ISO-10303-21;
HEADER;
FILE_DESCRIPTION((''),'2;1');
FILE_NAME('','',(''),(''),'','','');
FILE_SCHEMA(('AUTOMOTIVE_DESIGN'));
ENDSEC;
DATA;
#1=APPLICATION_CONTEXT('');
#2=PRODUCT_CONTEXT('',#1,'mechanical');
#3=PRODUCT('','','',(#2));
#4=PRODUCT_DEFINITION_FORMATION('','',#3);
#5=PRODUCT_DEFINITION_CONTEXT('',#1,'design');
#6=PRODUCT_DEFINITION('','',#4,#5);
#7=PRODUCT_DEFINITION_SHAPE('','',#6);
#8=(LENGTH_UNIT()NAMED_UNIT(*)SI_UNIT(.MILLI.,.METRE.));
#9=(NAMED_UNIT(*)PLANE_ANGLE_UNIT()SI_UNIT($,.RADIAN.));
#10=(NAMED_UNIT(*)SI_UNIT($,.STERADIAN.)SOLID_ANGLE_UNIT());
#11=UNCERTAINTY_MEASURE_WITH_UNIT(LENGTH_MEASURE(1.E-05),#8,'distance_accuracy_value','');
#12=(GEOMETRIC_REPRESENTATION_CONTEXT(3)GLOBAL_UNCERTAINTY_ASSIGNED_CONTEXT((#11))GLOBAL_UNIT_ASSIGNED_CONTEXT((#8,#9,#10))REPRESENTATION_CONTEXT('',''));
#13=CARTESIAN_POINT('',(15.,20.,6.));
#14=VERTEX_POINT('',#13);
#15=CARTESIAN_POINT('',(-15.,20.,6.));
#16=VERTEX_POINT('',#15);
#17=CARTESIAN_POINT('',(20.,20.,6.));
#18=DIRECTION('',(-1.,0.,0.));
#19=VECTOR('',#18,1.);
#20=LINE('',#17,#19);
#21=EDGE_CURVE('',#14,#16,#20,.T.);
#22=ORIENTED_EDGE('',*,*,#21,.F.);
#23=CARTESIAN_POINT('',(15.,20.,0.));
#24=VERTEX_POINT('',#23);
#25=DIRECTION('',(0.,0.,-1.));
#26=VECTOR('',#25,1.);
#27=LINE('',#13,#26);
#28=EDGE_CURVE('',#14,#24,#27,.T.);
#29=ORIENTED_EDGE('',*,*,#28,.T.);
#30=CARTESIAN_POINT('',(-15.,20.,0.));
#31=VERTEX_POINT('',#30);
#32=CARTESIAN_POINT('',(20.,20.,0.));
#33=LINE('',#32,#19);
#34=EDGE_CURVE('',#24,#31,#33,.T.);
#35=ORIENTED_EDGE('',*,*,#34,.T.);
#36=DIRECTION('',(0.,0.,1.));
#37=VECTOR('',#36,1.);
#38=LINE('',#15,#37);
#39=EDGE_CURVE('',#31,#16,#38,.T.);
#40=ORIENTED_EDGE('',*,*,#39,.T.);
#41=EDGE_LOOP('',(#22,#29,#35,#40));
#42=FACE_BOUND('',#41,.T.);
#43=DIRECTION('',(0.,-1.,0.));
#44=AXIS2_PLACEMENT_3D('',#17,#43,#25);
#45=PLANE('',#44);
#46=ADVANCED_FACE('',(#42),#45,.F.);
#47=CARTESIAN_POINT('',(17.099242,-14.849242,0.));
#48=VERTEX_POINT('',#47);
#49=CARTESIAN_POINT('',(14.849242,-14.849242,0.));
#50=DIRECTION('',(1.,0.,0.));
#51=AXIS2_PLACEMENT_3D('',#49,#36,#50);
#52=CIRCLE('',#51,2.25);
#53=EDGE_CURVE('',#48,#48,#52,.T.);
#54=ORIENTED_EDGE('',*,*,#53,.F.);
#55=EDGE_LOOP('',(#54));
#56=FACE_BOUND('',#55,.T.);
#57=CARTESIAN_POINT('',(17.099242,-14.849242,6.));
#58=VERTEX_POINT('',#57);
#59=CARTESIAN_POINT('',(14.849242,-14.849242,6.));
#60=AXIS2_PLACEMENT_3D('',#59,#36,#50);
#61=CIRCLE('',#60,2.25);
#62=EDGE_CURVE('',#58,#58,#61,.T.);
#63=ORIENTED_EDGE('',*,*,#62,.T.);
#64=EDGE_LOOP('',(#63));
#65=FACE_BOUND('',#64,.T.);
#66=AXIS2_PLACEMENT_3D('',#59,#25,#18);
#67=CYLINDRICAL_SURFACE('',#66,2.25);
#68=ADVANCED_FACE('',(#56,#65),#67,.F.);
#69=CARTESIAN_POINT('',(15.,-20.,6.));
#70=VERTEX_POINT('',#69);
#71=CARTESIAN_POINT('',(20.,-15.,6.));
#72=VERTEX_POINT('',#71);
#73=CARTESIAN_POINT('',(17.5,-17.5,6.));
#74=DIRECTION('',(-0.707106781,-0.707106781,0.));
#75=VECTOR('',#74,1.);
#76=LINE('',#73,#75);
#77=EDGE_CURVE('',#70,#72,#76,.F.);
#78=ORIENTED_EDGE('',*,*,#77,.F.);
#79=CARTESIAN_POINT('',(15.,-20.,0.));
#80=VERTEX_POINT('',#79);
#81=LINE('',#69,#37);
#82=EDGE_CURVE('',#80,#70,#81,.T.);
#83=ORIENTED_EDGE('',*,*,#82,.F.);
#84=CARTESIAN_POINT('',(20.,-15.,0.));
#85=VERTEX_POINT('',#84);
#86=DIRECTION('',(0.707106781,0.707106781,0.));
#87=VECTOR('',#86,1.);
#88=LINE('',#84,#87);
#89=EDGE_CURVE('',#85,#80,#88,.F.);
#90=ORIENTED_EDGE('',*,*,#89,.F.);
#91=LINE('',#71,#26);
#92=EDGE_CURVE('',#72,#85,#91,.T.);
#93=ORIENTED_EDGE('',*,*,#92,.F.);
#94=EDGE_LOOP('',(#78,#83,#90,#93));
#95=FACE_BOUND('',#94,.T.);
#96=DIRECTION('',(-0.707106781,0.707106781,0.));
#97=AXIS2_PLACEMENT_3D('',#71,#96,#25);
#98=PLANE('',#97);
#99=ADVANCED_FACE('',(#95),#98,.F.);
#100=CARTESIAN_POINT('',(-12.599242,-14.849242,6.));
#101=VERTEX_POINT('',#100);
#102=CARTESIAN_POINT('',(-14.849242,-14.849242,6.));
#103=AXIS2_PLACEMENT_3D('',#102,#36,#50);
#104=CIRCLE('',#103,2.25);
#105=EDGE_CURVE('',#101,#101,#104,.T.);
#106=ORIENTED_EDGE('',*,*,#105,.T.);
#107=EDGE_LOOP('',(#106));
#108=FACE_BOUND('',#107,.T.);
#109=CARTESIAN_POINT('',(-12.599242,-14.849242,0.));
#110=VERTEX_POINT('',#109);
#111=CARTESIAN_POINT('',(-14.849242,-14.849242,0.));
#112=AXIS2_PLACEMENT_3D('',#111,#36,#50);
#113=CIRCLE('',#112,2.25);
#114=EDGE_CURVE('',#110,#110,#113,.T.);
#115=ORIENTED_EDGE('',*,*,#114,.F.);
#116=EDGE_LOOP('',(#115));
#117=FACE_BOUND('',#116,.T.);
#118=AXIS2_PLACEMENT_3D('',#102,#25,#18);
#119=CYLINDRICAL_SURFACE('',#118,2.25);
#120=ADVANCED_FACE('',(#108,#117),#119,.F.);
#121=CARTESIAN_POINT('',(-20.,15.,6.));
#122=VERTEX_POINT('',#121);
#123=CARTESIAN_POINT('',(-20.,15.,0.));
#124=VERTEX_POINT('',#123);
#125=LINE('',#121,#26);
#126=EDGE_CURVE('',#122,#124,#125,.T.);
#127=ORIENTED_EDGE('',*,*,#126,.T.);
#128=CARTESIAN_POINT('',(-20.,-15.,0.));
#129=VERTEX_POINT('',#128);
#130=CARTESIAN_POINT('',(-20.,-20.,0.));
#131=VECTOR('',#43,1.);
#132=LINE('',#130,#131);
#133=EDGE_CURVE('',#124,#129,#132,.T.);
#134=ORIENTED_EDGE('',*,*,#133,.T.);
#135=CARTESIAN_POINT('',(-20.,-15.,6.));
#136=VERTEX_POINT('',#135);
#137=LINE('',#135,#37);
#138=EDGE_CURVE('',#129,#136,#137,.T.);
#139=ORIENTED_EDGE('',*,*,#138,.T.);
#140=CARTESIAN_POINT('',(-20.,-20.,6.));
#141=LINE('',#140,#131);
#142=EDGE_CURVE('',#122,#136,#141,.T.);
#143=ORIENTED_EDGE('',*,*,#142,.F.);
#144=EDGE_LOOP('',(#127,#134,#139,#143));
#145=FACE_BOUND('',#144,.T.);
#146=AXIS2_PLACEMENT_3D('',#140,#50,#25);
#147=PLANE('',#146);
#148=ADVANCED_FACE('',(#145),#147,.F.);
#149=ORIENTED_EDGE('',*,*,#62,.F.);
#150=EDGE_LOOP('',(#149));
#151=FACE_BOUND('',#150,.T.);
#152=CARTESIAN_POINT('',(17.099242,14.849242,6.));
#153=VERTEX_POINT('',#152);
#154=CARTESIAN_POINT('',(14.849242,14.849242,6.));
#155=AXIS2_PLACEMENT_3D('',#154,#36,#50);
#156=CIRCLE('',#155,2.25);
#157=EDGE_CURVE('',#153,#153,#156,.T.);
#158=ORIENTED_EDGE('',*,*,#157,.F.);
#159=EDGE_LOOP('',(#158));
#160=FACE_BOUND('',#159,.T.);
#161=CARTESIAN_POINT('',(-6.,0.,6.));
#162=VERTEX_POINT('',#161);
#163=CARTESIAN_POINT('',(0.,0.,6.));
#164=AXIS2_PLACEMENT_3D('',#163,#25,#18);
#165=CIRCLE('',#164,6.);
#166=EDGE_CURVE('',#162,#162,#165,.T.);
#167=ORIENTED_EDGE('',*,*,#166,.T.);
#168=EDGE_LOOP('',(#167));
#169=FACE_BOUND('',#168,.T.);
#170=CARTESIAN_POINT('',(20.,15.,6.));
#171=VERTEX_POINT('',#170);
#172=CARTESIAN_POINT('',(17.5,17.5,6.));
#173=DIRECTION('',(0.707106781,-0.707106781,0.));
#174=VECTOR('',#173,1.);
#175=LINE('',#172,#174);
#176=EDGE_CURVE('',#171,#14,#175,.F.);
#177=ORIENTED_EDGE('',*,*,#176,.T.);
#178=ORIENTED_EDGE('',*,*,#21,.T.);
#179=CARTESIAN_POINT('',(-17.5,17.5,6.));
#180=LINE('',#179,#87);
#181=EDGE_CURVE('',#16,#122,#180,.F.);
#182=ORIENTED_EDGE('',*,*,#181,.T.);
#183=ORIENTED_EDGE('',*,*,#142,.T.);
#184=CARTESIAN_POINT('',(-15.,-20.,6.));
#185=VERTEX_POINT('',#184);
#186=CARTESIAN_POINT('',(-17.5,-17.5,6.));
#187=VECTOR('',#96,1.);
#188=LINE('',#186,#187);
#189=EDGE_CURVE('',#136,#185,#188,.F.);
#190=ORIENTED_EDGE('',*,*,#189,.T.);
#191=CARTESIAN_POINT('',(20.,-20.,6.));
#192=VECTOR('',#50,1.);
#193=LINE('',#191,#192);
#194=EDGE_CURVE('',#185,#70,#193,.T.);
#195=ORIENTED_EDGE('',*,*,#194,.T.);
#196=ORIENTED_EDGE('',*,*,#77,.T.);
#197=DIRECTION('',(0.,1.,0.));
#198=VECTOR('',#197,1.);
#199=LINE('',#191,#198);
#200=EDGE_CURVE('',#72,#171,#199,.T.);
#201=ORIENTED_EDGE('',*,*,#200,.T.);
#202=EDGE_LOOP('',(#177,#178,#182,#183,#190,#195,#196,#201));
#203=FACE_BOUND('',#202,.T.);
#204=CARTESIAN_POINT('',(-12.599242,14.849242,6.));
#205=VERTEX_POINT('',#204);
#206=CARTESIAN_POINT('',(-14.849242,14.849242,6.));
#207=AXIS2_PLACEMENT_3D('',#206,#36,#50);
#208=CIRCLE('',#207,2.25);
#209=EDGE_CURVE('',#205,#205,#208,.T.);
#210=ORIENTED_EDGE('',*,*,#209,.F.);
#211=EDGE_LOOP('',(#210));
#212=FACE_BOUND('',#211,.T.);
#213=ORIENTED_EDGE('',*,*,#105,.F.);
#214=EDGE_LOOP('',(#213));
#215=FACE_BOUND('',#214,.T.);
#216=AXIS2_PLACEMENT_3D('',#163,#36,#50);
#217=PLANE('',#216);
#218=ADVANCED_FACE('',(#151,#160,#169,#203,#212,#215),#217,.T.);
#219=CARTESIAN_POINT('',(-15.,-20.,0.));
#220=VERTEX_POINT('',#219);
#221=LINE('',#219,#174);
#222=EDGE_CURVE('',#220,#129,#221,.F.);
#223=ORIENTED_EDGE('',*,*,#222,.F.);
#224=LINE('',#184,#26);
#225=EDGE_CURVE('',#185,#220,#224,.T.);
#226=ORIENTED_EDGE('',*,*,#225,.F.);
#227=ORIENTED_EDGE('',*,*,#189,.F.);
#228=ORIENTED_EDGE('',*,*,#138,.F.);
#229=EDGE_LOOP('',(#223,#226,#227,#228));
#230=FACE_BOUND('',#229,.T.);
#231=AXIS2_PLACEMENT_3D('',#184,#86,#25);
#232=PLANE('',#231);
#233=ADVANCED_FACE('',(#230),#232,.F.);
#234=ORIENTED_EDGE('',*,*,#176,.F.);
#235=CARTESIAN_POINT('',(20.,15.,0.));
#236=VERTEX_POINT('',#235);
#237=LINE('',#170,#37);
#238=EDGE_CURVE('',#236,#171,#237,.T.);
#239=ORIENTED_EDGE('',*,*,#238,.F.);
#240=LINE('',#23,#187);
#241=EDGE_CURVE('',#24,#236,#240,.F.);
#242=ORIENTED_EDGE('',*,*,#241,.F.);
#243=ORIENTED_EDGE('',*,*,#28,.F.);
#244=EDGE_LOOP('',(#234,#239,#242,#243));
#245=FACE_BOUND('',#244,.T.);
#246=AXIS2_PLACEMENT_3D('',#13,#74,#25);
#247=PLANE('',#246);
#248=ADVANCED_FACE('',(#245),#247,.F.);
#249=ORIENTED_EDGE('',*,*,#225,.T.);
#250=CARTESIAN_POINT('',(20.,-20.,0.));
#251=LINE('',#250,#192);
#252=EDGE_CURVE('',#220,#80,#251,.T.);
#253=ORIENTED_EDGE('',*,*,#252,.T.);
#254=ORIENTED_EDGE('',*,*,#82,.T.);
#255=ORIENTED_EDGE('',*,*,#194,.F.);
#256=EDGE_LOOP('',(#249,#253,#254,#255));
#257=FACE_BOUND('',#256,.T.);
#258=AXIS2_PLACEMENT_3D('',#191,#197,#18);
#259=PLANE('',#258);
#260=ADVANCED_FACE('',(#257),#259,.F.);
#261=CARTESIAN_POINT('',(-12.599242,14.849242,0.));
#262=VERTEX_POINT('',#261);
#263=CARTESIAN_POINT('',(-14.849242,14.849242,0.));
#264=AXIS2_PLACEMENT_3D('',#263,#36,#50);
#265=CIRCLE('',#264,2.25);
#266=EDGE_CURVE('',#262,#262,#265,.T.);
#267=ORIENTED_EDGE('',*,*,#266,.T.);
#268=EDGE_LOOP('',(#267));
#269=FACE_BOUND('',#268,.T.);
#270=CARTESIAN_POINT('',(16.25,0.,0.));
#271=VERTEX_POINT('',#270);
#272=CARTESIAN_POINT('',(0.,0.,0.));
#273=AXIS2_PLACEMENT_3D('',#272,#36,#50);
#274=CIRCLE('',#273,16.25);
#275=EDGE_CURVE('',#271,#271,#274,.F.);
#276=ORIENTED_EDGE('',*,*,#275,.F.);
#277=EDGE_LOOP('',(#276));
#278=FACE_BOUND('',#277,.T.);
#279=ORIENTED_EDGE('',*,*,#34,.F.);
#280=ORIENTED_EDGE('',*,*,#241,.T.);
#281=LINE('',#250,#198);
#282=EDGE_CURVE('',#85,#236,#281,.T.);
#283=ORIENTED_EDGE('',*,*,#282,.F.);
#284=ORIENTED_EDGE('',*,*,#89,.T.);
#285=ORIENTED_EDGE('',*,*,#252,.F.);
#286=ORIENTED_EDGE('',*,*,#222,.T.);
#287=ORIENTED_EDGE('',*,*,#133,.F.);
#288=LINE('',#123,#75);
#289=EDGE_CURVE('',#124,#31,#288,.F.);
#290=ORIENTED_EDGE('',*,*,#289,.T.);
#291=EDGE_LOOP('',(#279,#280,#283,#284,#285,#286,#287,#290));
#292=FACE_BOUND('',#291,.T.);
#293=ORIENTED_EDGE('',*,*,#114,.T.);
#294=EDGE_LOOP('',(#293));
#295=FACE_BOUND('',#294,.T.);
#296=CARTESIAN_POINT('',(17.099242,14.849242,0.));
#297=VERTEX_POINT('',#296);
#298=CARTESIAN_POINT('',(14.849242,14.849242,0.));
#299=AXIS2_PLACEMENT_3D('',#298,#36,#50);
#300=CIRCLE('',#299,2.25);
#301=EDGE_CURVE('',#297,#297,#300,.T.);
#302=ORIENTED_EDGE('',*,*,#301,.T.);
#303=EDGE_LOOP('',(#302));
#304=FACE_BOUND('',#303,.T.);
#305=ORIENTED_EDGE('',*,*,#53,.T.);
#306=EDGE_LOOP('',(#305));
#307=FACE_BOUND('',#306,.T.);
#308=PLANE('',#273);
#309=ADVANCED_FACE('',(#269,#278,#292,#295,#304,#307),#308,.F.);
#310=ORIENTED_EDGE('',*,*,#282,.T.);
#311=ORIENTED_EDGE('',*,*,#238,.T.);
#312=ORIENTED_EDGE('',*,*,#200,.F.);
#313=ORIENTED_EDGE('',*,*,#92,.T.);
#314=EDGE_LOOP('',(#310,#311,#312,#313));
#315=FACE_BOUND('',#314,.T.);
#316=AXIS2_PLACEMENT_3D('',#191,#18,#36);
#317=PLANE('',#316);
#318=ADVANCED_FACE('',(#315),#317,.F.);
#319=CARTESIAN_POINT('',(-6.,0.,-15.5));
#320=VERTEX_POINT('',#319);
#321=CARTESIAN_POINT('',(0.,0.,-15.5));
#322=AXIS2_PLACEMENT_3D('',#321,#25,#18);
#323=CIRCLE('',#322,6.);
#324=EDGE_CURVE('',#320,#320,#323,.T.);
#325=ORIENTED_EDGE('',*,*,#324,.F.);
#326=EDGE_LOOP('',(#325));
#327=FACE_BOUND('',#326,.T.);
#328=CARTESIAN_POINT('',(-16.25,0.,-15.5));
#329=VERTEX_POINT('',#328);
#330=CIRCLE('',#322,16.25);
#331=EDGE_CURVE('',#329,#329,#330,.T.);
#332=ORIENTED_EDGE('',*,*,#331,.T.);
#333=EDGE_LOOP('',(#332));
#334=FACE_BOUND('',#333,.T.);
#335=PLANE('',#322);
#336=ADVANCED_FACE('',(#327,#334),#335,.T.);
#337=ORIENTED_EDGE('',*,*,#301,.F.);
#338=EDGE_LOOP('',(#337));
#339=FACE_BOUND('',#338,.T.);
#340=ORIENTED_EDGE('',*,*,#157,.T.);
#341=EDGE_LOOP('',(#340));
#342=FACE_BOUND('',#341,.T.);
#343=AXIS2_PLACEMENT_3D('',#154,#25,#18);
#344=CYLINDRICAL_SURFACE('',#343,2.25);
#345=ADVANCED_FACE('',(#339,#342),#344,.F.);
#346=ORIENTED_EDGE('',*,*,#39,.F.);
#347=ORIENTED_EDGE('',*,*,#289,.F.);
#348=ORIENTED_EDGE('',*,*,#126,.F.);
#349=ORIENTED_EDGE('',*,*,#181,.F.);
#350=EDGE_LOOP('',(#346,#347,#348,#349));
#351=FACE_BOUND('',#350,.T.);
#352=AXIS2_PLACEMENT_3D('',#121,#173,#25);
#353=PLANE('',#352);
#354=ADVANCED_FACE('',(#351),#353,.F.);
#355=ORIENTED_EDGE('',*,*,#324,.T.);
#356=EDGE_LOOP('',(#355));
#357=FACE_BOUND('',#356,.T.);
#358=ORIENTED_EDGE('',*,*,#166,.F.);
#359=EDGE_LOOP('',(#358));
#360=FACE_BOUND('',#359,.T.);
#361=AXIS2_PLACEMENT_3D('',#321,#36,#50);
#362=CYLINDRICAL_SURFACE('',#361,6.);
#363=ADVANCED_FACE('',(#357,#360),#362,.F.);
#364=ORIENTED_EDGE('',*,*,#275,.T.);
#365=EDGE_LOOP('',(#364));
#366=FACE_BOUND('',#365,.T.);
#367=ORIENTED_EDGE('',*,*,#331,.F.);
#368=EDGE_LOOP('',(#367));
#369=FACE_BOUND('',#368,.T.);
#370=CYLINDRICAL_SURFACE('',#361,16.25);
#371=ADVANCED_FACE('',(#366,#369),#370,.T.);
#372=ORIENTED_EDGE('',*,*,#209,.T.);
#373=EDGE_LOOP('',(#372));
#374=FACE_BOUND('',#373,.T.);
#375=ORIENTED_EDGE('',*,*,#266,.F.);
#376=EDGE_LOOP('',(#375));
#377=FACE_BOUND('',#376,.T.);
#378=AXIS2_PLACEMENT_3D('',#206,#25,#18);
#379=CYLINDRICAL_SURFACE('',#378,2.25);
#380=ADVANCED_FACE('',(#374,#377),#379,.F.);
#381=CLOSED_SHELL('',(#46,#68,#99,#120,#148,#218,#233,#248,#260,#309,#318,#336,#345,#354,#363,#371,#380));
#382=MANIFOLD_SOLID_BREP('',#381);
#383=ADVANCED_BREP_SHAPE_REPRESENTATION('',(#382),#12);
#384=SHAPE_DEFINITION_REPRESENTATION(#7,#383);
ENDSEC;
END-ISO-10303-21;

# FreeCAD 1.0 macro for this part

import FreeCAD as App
import Part
import Sketcher

V = App.Vector
Q = App.Units.Quantity


def edges_at(feature, points):
    """Names of the edges that pass closest to the given points."""
    edges = feature.Shape.Edges
    near = lambda p: min(range(len(edges)), key=lambda i: edges[i].distToShape(Part.Vertex(*p))[0])
    return sorted({f"Edge{near(p) + 1}" for p in points})

doc = App.newDocument("Part")
body = doc.addObject("PartDesign::Body", "Body")

# Sketch on XY plane
sketch1 = doc.addObject("Sketcher::SketchObject", "Sketch")
body.addObject(sketch1)
sketch1.AttachmentSupport = (doc.XY_Plane, [""])
sketch1.MapMode = "FlatFace"
sketch1.addGeometry(Part.LineSegment(V(-20, 20, 0), V(-20, -20, 0)), False)
sketch1.addGeometry(Part.LineSegment(V(-20, -20, 0), V(20, -20, 0)), False)
sketch1.addGeometry(Part.LineSegment(V(20, -20, 0), V(20, 20, 0)), False)
sketch1.addGeometry(Part.LineSegment(V(20, 20, 0), V(-20, 20, 0)), False)
sketch1.addGeometry(Part.Circle(V(-14.849242, -14.849242, 0), V(0, 0, 1), 2.25), False)
sketch1.addGeometry(Part.Circle(V(14.849242, -14.849242, 0), V(0, 0, 1), 2.25), False)
sketch1.addGeometry(Part.Circle(V(-14.849242, 14.849242, 0), V(0, 0, 1), 2.25), False)
sketch1.addGeometry(Part.Circle(V(14.849242, 14.849242, 0), V(0, 0, 1), 2.25), False)
sketch1.addConstraint(Sketcher.Constraint("Coincident", 0, 2, 1, 1))
sketch1.addConstraint(Sketcher.Constraint("Coincident", 1, 2, 2, 1))
sketch1.addConstraint(Sketcher.Constraint("Coincident", 2, 2, 3, 1))
sketch1.addConstraint(Sketcher.Constraint("Coincident", 3, 2, 0, 1))
sketch1.addConstraint(Sketcher.Constraint("Vertical", 0))
sketch1.addConstraint(Sketcher.Constraint("Horizontal", 1))
sketch1.addConstraint(Sketcher.Constraint("Vertical", 2))
sketch1.addConstraint(Sketcher.Constraint("Horizontal", 3))
sketch1.addConstraint(Sketcher.Constraint("Equal", 4, 5))
sketch1.addConstraint(Sketcher.Constraint("Equal", 5, 6))
sketch1.addConstraint(Sketcher.Constraint("Equal", 6, 7))
sketch1.addConstraint(Sketcher.Constraint("Symmetric", 5, 3, 6, 3, -1, 1))
sketch1.addConstraint(Sketcher.Constraint("Symmetric", 4, 3, 7, 3, -1, 1))
sketch1.addConstraint(Sketcher.Constraint("Symmetric", 0, 2, 2, 2, -1, 1))
sketch1.addConstraint(Sketcher.Constraint("Symmetric", 4, 3, 5, 3, -2))
sketch1.addConstraint(Sketcher.Constraint("Equal", 3, 0))
sketch1.addConstraint(Sketcher.Constraint("Diameter", 4, Q("4.5 mm")))
sketch1.addConstraint(Sketcher.Constraint("DistanceX", 1, 1, 1, 2, Q("40 mm")))
sketch1.addConstraint(Sketcher.Constraint("DistanceX", 4, 3, -1, 1, Q("14.849242 mm")))
sketch1.addConstraint(Sketcher.Constraint("DistanceY", 4, 3, -1, 1, Q("14.849242 mm")))
pad1 = doc.addObject("PartDesign::Pad", "Pad")
body.addObject(pad1)
pad1.Profile = sketch1
pad1.Length = 6
doc.recompute()

chamfer = doc.addObject("PartDesign::Chamfer", "Chamfer")
body.addObject(chamfer)
chamfer.Base = (pad1, edges_at(pad1, [
    (-20, 20, 3),
    (20, 20, 3),
    (20, -20, 3),
    (-20, -20, 3),
]))
chamfer.Size = 5

# Sketch on XY plane
sketch2 = doc.addObject("Sketcher::SketchObject", "Sketch001")
body.addObject(sketch2)
sketch2.AttachmentSupport = (doc.XY_Plane, [""])
sketch2.MapMode = "FlatFace"
sketch2.addGeometry(Part.Circle(V(0, 0, 0), V(0, 0, 1), 16.25), False)
sketch2.addGeometry(Part.Circle(V(0, 0, 0), V(0, 0, 1), 6), False)
sketch2.addConstraint(Sketcher.Constraint("Coincident", 0, 3, -1, 1))
sketch2.addConstraint(Sketcher.Constraint("Coincident", 1, 3, -1, 1))
sketch2.addConstraint(Sketcher.Constraint("Diameter", 1, Q("12 mm")))
sketch2.addConstraint(Sketcher.Constraint("Diameter", 0, Q("32.5 mm")))
pad2 = doc.addObject("PartDesign::Pad", "Pad001")
body.addObject(pad2)
pad2.Profile = sketch2
pad2.Length = 15.5
pad2.Reversed = True

# Sketch on XY plane
sketch3 = doc.addObject("Sketcher::SketchObject", "Sketch002")
body.addObject(sketch3)
sketch3.AttachmentSupport = (doc.XY_Plane, [""])
sketch3.MapMode = "FlatFace"
sketch3.addGeometry(Part.Circle(V(0, 0, 0), V(0, 0, 1), 6), False)
sketch3.addConstraint(Sketcher.Constraint("Coincident", 0, 3, -1, 1))
sketch3.addConstraint(Sketcher.Constraint("Diameter", 0, Q("12 mm")))
pocket1 = doc.addObject("PartDesign::Pocket", "Pocket")
body.addObject(pocket1)
pocket1.Profile = sketch3
pocket1.Type = "ThroughAll"
pocket1.Reversed = True

doc.recompute()
